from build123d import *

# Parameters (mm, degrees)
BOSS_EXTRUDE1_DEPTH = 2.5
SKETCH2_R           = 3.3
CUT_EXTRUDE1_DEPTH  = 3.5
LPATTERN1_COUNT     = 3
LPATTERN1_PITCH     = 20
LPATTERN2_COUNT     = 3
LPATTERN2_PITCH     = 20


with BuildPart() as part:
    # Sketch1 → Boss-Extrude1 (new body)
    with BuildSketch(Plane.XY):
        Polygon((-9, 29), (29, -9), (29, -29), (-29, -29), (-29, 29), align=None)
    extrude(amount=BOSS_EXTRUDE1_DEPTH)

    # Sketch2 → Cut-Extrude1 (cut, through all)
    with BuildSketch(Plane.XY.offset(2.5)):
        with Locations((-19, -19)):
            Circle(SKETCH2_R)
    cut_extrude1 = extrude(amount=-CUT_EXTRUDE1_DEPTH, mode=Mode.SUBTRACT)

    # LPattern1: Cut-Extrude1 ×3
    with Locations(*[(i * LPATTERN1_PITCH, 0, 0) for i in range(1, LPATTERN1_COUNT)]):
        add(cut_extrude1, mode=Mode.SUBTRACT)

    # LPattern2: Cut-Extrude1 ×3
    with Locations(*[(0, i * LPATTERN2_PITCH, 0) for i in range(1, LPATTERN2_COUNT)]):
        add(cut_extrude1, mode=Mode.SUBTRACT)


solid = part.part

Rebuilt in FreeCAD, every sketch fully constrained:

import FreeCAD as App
import Part
import Sketcher

V = App.Vector
Q = App.Units.Quantity


def add_polygon(sketch, points):
    """Adds a closed chain of lines whose ends are joined by coincident constraints."""
    first, n = sketch.GeometryCount, len(points)
    for a, b in zip(points, points[1:] + points[:1]):
        sketch.addGeometry(Part.LineSegment(App.Vector(*a, 0), App.Vector(*b, 0)), False)
    for i in range(n):
        sketch.addConstraint(Sketcher.Constraint("Coincident", first + i, 2, first + (i + 1) % n, 1))

doc = App.newDocument("Part")
body = doc.addObject("PartDesign::Body", "Body")

sketch1 = body.newObject("Sketcher::SketchObject", "Sketch")
sketch1.AttachmentSupport = (doc.getObject("XY_Plane"), [""])
sketch1.MapMode = "FlatFace"
add_polygon(sketch1, [(29, -9), (-9, 29), (-29, 29), (-29, -29), (29, -29)])
sketch1.addConstraint(Sketcher.Constraint("Horizontal", 1))
sketch1.addConstraint(Sketcher.Constraint("Vertical", 2))
sketch1.addConstraint(Sketcher.Constraint("Horizontal", 3))
sketch1.addConstraint(Sketcher.Constraint("Vertical", 4))
sketch1.addConstraint(Sketcher.Constraint("Symmetric", 1, 2, 3, 2, -1, 1))
sketch1.addConstraint(Sketcher.Constraint("Equal", 3, 2))
sketch1.addConstraint(Sketcher.Constraint("Equal", 1, 4))
sketch1.addConstraint(Sketcher.Constraint("DistanceX", 1, 2, 1, 1, Q("20 mm")))
sketch1.addConstraint(Sketcher.Constraint("DistanceX", 3, 1, 3, 2, Q("58 mm")))
pad1 = body.newObject("PartDesign::Pad", "Pad")
pad1.Profile = sketch1
pad1.Length = 2.5

sketch2 = body.newObject("Sketcher::SketchObject", "Sketch001")
sketch2.AttachmentSupport = (doc.getObject("XY_Plane"), [""])
sketch2.MapMode = "FlatFace"
sketch2.AttachmentOffset = App.Placement(V(0, 0, 2.5), App.Rotation())
sketch2.addGeometry(Part.Circle(V(-19, -19, 0), V(0, 0, 1), 3.3), False)
sketch2.addConstraint(Sketcher.Constraint("Diameter", 0, Q("6.6 mm")))
sketch2.addConstraint(Sketcher.Constraint("DistanceX", 0, 3, -1, 1, Q("19 mm")))
sketch2.addConstraint(Sketcher.Constraint("DistanceY", 0, 3, -1, 1, Q("19 mm")))
pocket1 = body.newObject("PartDesign::Pocket", "Pocket")
pocket1.Profile = sketch2
pocket1.Type = "ThroughAll"
doc.recompute()

linearpattern = body.newObject("PartDesign::LinearPattern", "LinearPattern")
linearpattern.Originals = [pocket1]
linearpattern.Direction = (doc.getObject("X_Axis"), [""])
linearpattern.Mode = "offset"
linearpattern.Offset = 20
linearpattern.Occurrences = 3
body.Tip = linearpattern
doc.recompute()

linearpattern2 = body.newObject("PartDesign::LinearPattern", "LinearPattern001")
linearpattern2.Originals = [pocket1]
linearpattern2.Direction = (doc.getObject("Y_Axis"), [""])
linearpattern2.Mode = "offset"
linearpattern2.Offset = 20
linearpattern2.Occurrences = 3
body.Tip = linearpattern2

doc.recompute()
